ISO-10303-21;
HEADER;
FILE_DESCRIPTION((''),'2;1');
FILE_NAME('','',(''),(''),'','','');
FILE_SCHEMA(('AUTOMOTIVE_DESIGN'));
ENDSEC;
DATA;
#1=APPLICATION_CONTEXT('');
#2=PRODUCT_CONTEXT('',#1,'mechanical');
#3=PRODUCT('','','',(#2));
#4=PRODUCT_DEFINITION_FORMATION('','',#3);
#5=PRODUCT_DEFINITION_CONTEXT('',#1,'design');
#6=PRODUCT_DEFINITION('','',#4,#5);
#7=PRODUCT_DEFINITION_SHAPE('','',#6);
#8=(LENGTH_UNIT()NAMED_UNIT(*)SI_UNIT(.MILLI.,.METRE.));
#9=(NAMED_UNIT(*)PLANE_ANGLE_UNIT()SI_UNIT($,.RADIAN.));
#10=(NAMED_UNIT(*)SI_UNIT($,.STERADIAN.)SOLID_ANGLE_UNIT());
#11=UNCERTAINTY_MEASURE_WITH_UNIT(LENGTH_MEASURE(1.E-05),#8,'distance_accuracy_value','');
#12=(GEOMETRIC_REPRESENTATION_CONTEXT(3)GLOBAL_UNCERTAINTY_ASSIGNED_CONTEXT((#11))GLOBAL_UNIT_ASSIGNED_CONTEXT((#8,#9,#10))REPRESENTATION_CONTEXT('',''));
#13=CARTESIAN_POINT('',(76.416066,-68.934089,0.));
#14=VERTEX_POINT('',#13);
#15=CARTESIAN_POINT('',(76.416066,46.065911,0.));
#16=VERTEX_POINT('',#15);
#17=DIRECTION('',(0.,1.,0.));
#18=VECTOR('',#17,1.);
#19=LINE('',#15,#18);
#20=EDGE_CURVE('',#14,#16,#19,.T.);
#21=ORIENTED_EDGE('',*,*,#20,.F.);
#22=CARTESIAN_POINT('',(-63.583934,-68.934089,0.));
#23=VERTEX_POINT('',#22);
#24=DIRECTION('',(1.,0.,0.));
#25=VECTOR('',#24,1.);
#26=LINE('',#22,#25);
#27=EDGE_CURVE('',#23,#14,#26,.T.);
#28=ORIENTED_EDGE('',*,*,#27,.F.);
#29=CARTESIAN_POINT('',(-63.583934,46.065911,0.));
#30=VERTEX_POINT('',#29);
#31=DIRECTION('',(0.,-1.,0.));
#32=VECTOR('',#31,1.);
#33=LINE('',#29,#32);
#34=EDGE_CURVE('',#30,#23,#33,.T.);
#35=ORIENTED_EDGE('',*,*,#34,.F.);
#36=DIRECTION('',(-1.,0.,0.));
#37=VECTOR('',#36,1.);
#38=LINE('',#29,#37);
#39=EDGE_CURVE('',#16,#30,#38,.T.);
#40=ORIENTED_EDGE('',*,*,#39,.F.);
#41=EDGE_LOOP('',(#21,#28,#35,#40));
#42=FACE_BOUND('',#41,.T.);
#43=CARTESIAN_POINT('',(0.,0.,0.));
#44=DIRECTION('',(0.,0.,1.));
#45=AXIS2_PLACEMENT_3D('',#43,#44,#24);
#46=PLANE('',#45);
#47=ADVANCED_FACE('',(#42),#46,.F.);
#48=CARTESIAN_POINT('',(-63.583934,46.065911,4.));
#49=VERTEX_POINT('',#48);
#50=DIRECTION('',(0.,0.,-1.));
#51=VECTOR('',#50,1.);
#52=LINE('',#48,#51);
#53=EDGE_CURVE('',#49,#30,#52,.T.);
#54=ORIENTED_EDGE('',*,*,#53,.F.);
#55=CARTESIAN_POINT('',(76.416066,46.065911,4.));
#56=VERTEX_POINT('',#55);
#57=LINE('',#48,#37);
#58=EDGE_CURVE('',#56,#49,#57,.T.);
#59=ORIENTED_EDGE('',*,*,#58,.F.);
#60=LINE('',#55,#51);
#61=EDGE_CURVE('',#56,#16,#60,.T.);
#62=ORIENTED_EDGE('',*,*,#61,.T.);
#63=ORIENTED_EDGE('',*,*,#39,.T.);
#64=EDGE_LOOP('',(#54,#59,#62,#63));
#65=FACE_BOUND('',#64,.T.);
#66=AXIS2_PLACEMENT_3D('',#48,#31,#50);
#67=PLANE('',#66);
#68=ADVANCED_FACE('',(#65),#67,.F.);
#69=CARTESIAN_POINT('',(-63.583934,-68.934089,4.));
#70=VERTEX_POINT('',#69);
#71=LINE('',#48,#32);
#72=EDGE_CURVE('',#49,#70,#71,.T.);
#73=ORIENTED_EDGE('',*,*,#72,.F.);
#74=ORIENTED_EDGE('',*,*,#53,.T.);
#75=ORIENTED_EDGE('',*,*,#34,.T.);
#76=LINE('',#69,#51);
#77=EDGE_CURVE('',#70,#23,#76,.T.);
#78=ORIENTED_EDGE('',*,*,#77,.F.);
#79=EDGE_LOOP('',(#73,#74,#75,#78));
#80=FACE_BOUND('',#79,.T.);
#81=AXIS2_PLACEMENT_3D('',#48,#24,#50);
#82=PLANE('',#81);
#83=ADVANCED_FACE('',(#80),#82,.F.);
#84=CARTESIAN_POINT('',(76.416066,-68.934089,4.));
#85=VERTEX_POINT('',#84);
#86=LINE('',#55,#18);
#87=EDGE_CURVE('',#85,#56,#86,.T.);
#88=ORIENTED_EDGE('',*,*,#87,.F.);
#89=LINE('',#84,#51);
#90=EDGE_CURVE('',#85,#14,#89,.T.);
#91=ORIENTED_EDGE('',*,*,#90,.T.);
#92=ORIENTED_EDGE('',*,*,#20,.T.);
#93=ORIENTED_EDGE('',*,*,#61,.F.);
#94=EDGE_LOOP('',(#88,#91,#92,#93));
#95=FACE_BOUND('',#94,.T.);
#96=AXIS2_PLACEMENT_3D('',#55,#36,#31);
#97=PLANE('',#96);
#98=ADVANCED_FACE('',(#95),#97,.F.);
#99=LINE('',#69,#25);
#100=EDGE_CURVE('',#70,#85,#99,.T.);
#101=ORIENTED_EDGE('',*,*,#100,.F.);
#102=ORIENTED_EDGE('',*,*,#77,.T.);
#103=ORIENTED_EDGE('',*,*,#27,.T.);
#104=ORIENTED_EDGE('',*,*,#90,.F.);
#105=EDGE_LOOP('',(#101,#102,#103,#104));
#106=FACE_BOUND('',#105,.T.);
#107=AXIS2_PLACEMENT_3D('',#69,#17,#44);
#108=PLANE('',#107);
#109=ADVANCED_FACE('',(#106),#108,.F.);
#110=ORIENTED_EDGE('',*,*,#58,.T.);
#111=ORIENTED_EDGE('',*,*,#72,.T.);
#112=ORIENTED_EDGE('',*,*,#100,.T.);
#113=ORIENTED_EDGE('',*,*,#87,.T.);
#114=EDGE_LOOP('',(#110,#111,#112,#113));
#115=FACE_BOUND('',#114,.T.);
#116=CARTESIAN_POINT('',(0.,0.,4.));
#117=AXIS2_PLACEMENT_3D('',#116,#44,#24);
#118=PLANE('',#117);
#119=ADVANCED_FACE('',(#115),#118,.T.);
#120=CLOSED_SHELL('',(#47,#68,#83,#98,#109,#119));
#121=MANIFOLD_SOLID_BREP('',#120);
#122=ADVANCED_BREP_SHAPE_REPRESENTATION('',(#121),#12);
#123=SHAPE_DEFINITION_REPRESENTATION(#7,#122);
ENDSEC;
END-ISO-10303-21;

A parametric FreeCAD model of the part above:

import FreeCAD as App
import Part
import Sketcher


def add_polygon(sketch, points):
    """Adds a closed chain of lines whose ends are joined by coincident constraints."""
    first, n = sketch.GeometryCount, len(points)
    for a, b in zip(points, points[1:] + points[:1]):
        sketch.addGeometry(Part.LineSegment(App.Vector(*a, 0), App.Vector(*b, 0)), False)
    for i in range(n):
        sketch.addConstraint(Sketcher.Constraint("Coincident", first + i, 2, first + (i + 1) % n, 1))

doc = App.newDocument("Part")
params = doc.addObject("Spreadsheet::Sheet", "Params")
for row, (alias, value) in enumerate([
    ("sketch1_width", "140 mm"),
    ("sketch1_height", "115 mm"),
    ("pad1_length", "4 mm"),
], start=1):
    params.set(f"A{row}", alias)
    params.set(f"B{row}", "=" + value)
    params.setAlias(f"B{row}", alias)

body = doc.addObject("PartDesign::Body", "Body")

# Sketch on XY plane
sketch1 = body.newObject("Sketcher::SketchObject", "Sketch")
sketch1.AttachmentSupport = (doc.getObject("XY_Plane"), [""])
sketch1.MapMode = "FlatFace"
add_polygon(sketch1, [(-64, 46), (-64, -69), (76, -69), (76, 46)])  # lines 0-3
sketch1.addConstraint([
    Sketcher.Constraint("Vertical", 0),
    Sketcher.Constraint("Horizontal", 1),
    Sketcher.Constraint("Vertical", 2),
    Sketcher.Constraint("Horizontal", 3),
    Sketcher.Constraint("DistanceX", 1, 1, 1, 2, 140.0),
    Sketcher.Constraint("DistanceY", 0, 2, 0, 1, 115.0),
    Sketcher.Constraint("DistanceY", 0, 2, -1, 1, 68.934089),
    Sketcher.Constraint("DistanceX", 0, 2, -1, 1, 63.583934),
])
sketch1.setExpression("Constraints[8]", "Params.sketch1_width")
sketch1.setExpression("Constraints[9]", "Params.sketch1_height")
pad1 = body.newObject("PartDesign::Pad", "Pad")
pad1.Profile = sketch1
pad1.setExpression("Length", "Params.pad1_length")

doc.recompute()
